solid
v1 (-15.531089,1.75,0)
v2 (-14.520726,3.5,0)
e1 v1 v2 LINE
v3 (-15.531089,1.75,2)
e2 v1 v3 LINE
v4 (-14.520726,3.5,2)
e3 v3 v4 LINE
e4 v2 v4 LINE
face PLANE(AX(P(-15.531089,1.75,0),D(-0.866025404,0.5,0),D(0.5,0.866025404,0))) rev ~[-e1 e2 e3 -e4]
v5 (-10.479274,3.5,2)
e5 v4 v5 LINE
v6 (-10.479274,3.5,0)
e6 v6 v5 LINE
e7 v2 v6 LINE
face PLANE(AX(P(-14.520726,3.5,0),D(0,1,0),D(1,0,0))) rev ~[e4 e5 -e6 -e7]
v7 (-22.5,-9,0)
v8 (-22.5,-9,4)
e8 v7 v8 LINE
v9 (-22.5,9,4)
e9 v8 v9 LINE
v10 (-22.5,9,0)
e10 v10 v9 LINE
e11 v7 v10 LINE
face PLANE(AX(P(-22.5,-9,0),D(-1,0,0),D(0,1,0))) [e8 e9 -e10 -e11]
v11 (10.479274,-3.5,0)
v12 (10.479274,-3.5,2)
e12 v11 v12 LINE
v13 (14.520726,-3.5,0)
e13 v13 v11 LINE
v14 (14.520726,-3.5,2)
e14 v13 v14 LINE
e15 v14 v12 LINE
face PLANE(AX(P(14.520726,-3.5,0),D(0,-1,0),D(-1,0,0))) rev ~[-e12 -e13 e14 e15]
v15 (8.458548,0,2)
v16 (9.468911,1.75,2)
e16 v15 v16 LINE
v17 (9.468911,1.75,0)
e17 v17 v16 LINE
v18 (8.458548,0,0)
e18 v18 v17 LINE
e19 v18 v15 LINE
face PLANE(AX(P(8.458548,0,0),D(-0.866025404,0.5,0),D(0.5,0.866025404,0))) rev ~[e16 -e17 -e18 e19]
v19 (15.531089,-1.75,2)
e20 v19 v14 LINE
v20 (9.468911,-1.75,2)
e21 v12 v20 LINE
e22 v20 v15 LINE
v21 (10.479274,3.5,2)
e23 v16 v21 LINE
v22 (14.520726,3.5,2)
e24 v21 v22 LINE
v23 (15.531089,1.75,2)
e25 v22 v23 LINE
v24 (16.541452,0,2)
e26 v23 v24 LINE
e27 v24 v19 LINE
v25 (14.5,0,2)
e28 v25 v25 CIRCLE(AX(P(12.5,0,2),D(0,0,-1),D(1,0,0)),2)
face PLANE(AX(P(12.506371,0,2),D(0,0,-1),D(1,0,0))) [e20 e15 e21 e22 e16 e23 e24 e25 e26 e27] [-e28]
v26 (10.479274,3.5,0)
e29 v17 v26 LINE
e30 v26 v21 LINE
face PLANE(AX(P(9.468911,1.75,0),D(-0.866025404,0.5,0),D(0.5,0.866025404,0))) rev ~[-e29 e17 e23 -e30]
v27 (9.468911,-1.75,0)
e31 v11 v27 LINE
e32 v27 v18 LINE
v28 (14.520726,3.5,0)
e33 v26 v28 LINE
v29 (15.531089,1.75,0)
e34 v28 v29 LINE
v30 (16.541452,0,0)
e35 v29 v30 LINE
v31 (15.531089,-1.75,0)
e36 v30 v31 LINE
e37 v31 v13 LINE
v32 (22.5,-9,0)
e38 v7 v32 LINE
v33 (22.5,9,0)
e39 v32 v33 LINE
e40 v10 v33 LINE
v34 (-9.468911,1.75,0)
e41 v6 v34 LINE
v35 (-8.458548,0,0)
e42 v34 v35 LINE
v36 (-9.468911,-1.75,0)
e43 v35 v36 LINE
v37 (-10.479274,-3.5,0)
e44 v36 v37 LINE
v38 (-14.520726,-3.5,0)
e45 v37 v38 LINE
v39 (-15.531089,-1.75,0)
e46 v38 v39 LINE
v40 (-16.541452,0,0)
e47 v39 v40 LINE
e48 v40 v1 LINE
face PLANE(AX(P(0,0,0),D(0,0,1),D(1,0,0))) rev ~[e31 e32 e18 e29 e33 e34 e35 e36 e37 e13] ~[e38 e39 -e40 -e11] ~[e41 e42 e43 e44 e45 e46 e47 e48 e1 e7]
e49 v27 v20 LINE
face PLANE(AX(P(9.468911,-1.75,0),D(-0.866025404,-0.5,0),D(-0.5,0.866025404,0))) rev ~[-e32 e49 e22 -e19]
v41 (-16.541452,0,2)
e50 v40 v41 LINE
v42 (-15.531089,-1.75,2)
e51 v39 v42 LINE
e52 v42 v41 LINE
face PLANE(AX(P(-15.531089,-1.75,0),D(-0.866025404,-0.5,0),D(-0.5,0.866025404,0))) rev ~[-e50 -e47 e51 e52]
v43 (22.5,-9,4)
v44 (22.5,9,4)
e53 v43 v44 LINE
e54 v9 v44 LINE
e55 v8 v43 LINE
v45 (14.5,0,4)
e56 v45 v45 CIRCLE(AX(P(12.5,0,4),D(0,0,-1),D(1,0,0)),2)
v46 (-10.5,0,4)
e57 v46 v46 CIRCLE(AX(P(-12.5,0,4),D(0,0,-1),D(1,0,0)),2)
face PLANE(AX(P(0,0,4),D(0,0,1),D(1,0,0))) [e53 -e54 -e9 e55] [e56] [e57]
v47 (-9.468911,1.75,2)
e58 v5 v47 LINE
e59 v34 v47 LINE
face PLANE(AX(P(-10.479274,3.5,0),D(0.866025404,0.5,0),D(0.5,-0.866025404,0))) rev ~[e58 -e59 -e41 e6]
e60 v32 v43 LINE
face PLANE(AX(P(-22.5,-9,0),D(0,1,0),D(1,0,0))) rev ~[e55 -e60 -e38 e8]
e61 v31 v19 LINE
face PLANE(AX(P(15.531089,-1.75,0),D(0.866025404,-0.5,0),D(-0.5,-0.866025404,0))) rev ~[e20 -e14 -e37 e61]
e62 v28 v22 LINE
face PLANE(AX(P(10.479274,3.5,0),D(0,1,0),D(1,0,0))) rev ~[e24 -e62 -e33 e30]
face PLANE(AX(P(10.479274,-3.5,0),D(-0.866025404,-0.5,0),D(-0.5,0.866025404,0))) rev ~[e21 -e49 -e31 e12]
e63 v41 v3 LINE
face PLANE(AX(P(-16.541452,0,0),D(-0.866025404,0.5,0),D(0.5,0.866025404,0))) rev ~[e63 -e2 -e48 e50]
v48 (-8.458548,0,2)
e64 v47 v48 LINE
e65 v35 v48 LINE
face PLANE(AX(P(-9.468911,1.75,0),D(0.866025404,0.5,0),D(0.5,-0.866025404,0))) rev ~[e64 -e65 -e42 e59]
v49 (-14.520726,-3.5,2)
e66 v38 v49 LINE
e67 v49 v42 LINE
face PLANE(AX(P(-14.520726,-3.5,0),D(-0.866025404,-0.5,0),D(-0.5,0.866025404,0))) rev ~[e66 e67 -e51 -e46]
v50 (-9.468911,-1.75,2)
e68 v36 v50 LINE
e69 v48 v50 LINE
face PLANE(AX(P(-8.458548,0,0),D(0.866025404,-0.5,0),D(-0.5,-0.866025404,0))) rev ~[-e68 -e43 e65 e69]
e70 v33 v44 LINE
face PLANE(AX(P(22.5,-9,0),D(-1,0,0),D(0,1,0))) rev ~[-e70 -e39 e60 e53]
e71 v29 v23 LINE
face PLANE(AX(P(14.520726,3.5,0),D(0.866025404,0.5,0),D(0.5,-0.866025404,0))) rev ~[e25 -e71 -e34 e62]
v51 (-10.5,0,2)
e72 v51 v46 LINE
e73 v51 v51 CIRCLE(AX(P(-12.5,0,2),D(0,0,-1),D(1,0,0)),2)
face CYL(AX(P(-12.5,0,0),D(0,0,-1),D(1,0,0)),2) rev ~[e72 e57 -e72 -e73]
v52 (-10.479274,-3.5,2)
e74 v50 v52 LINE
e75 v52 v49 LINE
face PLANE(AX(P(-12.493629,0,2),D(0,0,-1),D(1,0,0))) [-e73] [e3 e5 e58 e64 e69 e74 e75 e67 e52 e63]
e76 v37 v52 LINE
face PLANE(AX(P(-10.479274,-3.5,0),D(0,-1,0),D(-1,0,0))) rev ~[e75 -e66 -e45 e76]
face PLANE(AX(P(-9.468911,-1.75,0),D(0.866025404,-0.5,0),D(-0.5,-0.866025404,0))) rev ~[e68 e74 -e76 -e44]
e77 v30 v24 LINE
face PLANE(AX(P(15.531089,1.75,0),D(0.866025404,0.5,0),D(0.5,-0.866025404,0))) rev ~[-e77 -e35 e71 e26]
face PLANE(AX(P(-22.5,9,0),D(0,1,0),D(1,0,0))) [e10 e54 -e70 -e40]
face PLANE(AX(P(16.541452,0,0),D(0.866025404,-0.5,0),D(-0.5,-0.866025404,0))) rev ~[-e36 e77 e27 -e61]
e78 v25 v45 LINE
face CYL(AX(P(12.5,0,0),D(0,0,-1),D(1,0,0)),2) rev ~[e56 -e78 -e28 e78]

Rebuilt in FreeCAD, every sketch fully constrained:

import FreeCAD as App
import Part
import Sketcher

V = App.Vector
Q = App.Units.Quantity

doc = App.newDocument("Part")
body = doc.addObject("PartDesign::Body", "Body")

# Sketch on XY plane
sketch1 = body.newObject("Sketcher::SketchObject", "Sketch")
sketch1.AttachmentSupport = (doc.getObject("XY_Plane"), [""])
sketch1.MapMode = "FlatFace"
sketch1.addGeometry([
    Part.LineSegment(V(-22, 9, 0), V(-22, -9, 0)),
    Part.LineSegment(V(-22, -9, 0), V(22, -9, 0)),
    Part.LineSegment(V(22, -9, 0), V(22, 9, 0)),
    Part.LineSegment(V(22, 9, 0), V(-22, 9, 0)),
], False)
sketch1.addConstraint([
    Sketcher.Constraint("Coincident", 0, 2, 1, 1),
    Sketcher.Constraint("Coincident", 1, 2, 2, 1),
    Sketcher.Constraint("Coincident", 2, 2, 3, 1),
    Sketcher.Constraint("Coincident", 3, 2, 0, 1),
    Sketcher.Constraint("Vertical", 0),
    Sketcher.Constraint("Horizontal", 1),
    Sketcher.Constraint("Vertical", 2),
    Sketcher.Constraint("Horizontal", 3),
    Sketcher.Constraint("Symmetric", 0, 2, 2, 2, -1, 1),
    Sketcher.Constraint("DistanceX", 1, 1, 1, 2, Q("45 mm")),
    Sketcher.Constraint("DistanceY", 0, 2, 0, 1, Q("18 mm")),
])
pad1 = body.newObject("PartDesign::Pad", "Pad")
pad1.Profile = sketch1
pad1.Length = 4

# Sketch on XY plane
sketch2 = body.newObject("Sketcher::SketchObject", "Sketch001")
sketch2.AttachmentSupport = (doc.getObject("XY_Plane"), [""])
sketch2.MapMode = "FlatFace"
sketch2.addGeometry([
    Part.LineSegment(V(-14.5, -3.5, 0), V(-15.5, -1.8, 0)),  # 0
    Part.LineSegment(V(-15.5, -1.8, 0), V(-16.5, 0, 0)),  # 1
    Part.LineSegment(V(-16.5, 0, 0), V(-15.5, 1.7, 0)),  # 2
    Part.LineSegment(V(-15.5, 1.7, 0), V(-14.5, 3.5, 0)),  # 3
    Part.LineSegment(V(-14.5, 3.5, 0), V(-10.5, 3.5, 0)),  # 4
    Part.LineSegment(V(-10.5, 3.5, 0), V(-9.5, 1.8, 0)),  # 5
    Part.LineSegment(V(-9.5, 1.8, 0), V(-8.5, 0, 0)),  # 6
    Part.LineSegment(V(-8.5, 0, 0), V(-9.5, -1.8, 0)),  # 7
    Part.LineSegment(V(-9.5, -1.8, 0), V(-10.5, -3.5, 0)),  # 8
    Part.LineSegment(V(-10.5, -3.5, 0), V(-14.5, -3.5, 0)),  # 9
    Part.LineSegment(V(10.5, -3.5, 0), V(9.5, -1.7, 0)),  # 10
    Part.LineSegment(V(9.5, -1.7, 0), V(8.5, 0, 0)),  # 11
    Part.LineSegment(V(8.5, 0, 0), V(9.5, 1.8, 0)),  # 12
    Part.LineSegment(V(9.5, 1.8, 0), V(10.5, 3.5, 0)),  # 13
    Part.LineSegment(V(10.5, 3.5, 0), V(14.5, 3.5, 0)),  # 14
    Part.LineSegment(V(14.5, 3.5, 0), V(15.5, 1.8, 0)),  # 15
    Part.LineSegment(V(15.5, 1.8, 0), V(16.5, 0, 0)),  # 16
    Part.LineSegment(V(16.5, 0, 0), V(15.5, -1.8, 0)),  # 17
    Part.LineSegment(V(15.5, -1.8, 0), V(14.5, -3.5, 0)),  # 18
    Part.LineSegment(V(14.5, -3.5, 0), V(10.5, -3.5, 0)),  # 19
], False)
sketch2.addConstraint([
    Sketcher.Constraint("Coincident", 0, 2, 1, 1),
    Sketcher.Constraint("Coincident", 1, 2, 2, 1),
    Sketcher.Constraint("Coincident", 2, 2, 3, 1),
    Sketcher.Constraint("Coincident", 3, 2, 4, 1),
    Sketcher.Constraint("Coincident", 4, 2, 5, 1),
    Sketcher.Constraint("Coincident", 5, 2, 6, 1),
    Sketcher.Constraint("Coincident", 6, 2, 7, 1),
    Sketcher.Constraint("Coincident", 7, 2, 8, 1),
    Sketcher.Constraint("Coincident", 8, 2, 9, 1),
    Sketcher.Constraint("Coincident", 9, 2, 0, 1),
    Sketcher.Constraint("Coincident", 10, 2, 11, 1),
    Sketcher.Constraint("Coincident", 11, 2, 12, 1),
    Sketcher.Constraint("Coincident", 12, 2, 13, 1),
    Sketcher.Constraint("Coincident", 13, 2, 14, 1),
    Sketcher.Constraint("Coincident", 14, 2, 15, 1),
    Sketcher.Constraint("Coincident", 15, 2, 16, 1),
    Sketcher.Constraint("Coincident", 16, 2, 17, 1),
    Sketcher.Constraint("Coincident", 17, 2, 18, 1),
    Sketcher.Constraint("Coincident", 18, 2, 19, 1),
    Sketcher.Constraint("Coincident", 19, 2, 10, 1),
    Sketcher.Constraint("Horizontal", 4),
    Sketcher.Constraint("Horizontal", 9),
    Sketcher.Constraint("Horizontal", 14),
    Sketcher.Constraint("Horizontal", 19),
    Sketcher.Constraint("Symmetric", 5, 2, 10, 2, -1, 1),
    Sketcher.Constraint("Symmetric", 6, 2, 11, 2, -1, 1),
    Sketcher.Constraint("Symmetric", 7, 2, 12, 2, -1, 1),
    Sketcher.Constraint("Symmetric", 8, 2, 13, 2, -1, 1),
    Sketcher.Constraint("Symmetric", 0, 2, 15, 2, -1, 1),
    Sketcher.Constraint("Symmetric", 1, 2, 16, 2, -1, 1),
    Sketcher.Constraint("Symmetric", 2, 2, 17, 2, -1, 1),
    Sketcher.Constraint("Symmetric", 3, 2, 18, 2, -1, 1),
    Sketcher.Constraint("Symmetric", 7, 2, 10, 2, -2),
    Sketcher.Constraint("Symmetric", 4, 2, 13, 2, -2),
    Sketcher.Constraint("Symmetric", 2, 2, 15, 2, -2),
    Sketcher.Constraint("PointOnObject", 1, 2, -1),
    Sketcher.Constraint("PointOnObject", 6, 2, -1),
    Sketcher.Constraint("Parallel", 0, 1),
    Sketcher.Constraint("Parallel", 2, 3),
    Sketcher.Constraint("Parallel", 1, 5),
    Sketcher.Constraint("Parallel", 5, 6),
    Sketcher.Constraint("Parallel", 6, 10),
    Sketcher.Constraint("Parallel", 11, 15),
    Sketcher.Constraint("Horizontal", 2, 2, 5, 2),
    Sketcher.Constraint("Equal", 0, 1),
    Sketcher.Constraint("Angle", 0, Q("120 deg")),
    Sketcher.Constraint("DistanceY", -1, 1, 3, 2, Q("3.5 mm")),
    Sketcher.Constraint("DistanceX", 4, 1, 4, 2, Q("4.041452 mm")),
    Sketcher.Constraint("DistanceX", 0, 2, -1, 1, Q("15.531089 mm")),
])
pocket1 = body.newObject("PartDesign::Pocket", "Pocket")
pocket1.Profile = sketch2
pocket1.Length = 2
pocket1.Reversed = True

# Sketch on XY plane
sketch3 = body.newObject("Sketcher::SketchObject", "Sketch002")
sketch3.AttachmentSupport = (doc.getObject("XY_Plane"), [""])
sketch3.MapMode = "FlatFace"
sketch3.addGeometry([
    Part.Circle(V(-12.5, 0, 0), V(0, 0, 1), 2),
    Part.Circle(V(12.5, 0, 0), V(0, 0, 1), 2),
], False)
sketch3.addConstraint([
    Sketcher.Constraint("Equal", 0, 1),
    Sketcher.Constraint("Symmetric", 0, 3, 1, 3, -1, 1),
    Sketcher.Constraint("PointOnObject", 0, 3, -1),
    Sketcher.Constraint("Diameter", 0, Q("4 mm")),
    Sketcher.Constraint("DistanceX", 0, 3, 1, 3, Q("25 mm")),
])
pocket2 = body.newObject("PartDesign::Pocket", "Pocket001")
pocket2.Profile = sketch3
pocket2.Length = 25
pocket2.Reversed = True

doc.recompute()
